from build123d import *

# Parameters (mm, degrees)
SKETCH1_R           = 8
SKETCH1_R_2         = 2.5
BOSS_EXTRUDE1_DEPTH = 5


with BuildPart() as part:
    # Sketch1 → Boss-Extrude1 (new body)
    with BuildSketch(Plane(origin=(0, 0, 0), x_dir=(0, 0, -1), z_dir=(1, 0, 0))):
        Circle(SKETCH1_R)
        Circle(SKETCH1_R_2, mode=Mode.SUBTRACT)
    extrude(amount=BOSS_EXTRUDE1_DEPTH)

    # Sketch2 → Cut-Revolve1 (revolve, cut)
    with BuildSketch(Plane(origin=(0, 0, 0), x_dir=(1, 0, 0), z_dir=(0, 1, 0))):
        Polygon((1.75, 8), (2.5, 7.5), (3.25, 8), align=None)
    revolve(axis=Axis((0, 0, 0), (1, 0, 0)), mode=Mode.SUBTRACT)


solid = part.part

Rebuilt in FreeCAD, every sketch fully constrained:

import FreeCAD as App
import Part
import Sketcher

V = App.Vector

doc = App.newDocument("Part")
body = doc.addObject("PartDesign::Body", "Body")

# Sketch on YZ plane
sketch1 = body.newObject("Sketcher::SketchObject", "Sketch")
sketch1.AttachmentSupport = (doc.getObject("YZ_Plane"), [""])
sketch1.MapMode = "FlatFace"
sketch1.addGeometry([
    Part.Circle(V(0, 0, 0), V(0, 0, 1), 8),
    Part.Circle(V(0, 0, 0), V(0, 0, 1), 2.5),
], False)
sketch1.addConstraint([
    Sketcher.Constraint("Coincident", 0, 3, -1, 1),
    Sketcher.Constraint("Coincident", 1, 3, -1, 1),
    Sketcher.Constraint("Diameter", 0, 16.0),
    Sketcher.Constraint("Diameter", 1, 5.0),
])
pad1 = body.newObject("PartDesign::Pad", "Pad")
pad1.Profile = sketch1
pad1.Length = 5

# Sketch on XZ plane
sketch2 = body.newObject("Sketcher::SketchObject", "Sketch001")
sketch2.AttachmentSupport = (doc.getObject("XZ_Plane"), [""])
sketch2.MapMode = "FlatFace"
sketch2.addGeometry([
    Part.LineSegment(V(1.75, -8, 0), V(2.5, -7.5, 0)),
    Part.LineSegment(V(2.5, -7.5, 0), V(3.25, -8, 0)),
    Part.LineSegment(V(3.25, -8, 0), V(1.75, -8, 0)),
], False)
sketch2.addConstraint([
    Sketcher.Constraint("Coincident", 0, 2, 1, 1),
    Sketcher.Constraint("Coincident", 1, 2, 2, 1),
    Sketcher.Constraint("Coincident", 2, 2, 0, 1),
    Sketcher.Constraint("Horizontal", 2),
    Sketcher.Constraint("Equal", 0, 1),
    Sketcher.Constraint("DistanceX", 2, 2, 2, 1, 1.5),
    Sketcher.Constraint("DistanceY", 1, 2, -1, 1, 8.0),
    Sketcher.Constraint("DistanceX", -1, 1, 0, 2, 2.5),
    Sketcher.Constraint("DistanceY", 0, 2, -1, 1, 7.5),
])
groove = body.newObject("PartDesign::Groove", "Groove")
groove.Profile = sketch2
groove.ReferenceAxis = (sketch2, ["H_Axis"])
groove.Angle = 360

doc.recompute()
